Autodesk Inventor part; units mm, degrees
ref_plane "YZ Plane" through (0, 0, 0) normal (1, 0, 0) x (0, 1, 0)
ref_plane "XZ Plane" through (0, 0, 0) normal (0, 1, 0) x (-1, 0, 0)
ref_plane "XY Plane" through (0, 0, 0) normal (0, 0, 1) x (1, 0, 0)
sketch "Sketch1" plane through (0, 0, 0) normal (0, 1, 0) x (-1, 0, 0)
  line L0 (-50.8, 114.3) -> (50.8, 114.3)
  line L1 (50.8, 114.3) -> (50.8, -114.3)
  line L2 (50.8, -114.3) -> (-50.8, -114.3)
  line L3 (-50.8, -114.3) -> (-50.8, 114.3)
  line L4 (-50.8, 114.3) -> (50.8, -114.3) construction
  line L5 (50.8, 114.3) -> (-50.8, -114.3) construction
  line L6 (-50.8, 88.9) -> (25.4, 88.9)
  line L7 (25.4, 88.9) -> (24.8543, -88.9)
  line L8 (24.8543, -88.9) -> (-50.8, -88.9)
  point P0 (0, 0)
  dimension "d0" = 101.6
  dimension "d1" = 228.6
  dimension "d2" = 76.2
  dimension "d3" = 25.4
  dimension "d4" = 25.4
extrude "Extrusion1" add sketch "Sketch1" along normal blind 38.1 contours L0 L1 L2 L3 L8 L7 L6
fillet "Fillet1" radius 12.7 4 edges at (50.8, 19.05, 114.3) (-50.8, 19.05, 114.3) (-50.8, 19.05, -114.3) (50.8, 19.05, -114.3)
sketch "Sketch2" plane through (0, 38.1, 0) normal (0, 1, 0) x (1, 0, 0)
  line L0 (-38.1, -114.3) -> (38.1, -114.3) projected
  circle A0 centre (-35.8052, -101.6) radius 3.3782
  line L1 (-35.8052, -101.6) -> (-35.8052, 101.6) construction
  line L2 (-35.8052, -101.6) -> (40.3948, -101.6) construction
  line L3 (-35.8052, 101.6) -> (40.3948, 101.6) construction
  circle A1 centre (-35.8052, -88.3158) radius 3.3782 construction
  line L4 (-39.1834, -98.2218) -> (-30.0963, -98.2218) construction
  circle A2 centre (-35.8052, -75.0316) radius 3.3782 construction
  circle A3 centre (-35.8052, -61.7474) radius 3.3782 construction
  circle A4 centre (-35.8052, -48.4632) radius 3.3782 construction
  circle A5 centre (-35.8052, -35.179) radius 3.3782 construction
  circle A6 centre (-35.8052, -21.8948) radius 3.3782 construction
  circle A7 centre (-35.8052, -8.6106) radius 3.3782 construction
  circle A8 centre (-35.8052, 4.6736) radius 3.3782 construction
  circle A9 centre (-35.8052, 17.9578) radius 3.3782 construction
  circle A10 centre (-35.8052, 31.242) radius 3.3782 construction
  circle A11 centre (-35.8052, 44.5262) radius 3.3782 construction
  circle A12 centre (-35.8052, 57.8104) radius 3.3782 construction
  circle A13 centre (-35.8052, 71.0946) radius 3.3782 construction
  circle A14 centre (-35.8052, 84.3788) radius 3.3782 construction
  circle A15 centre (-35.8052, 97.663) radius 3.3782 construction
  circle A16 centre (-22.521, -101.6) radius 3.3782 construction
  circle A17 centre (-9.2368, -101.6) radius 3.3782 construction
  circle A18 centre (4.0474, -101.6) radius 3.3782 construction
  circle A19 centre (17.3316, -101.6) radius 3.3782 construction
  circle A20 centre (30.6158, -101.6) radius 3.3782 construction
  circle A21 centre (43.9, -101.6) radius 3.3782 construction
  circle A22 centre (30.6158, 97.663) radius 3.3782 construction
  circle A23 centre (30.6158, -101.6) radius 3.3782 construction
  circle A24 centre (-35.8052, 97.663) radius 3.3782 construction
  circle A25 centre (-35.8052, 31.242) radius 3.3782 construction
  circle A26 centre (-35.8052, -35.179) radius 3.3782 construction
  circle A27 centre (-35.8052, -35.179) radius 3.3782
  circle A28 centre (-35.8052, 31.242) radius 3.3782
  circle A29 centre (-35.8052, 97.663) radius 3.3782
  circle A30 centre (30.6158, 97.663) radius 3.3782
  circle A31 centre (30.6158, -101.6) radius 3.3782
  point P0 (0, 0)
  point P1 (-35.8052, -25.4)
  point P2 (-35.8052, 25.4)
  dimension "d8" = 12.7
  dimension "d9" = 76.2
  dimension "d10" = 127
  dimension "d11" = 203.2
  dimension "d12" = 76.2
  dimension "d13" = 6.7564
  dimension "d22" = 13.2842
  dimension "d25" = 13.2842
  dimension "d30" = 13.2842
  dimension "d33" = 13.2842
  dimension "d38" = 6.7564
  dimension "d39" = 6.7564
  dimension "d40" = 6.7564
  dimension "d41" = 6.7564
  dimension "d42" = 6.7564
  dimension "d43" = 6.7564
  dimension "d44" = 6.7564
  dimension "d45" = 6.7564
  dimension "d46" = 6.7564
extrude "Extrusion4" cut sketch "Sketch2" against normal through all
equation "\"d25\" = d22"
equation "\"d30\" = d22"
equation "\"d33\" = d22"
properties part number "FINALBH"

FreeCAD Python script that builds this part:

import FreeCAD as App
import Part
import Sketcher
Q = App.Units.Quantity


def edges_at(feature, points):
    """Names of the edges that pass closest to the given points."""
    edges = feature.Shape.Edges
    near = lambda p: min(range(len(edges)), key=lambda i: edges[i].distToShape(Part.Vertex(*p))[0])
    return sorted({f"Edge{near(p) + 1}" for p in points})

doc = App.newDocument("Part")
body = doc.addObject("PartDesign::Body", "Body")

sketch1 = body.newObject("Sketcher::SketchObject", "Sketch")
sketch1.AttachmentSupport = (doc.getObject("XZ_Plane"), [""])
sketch1.MapMode = "FlatFace"
sketch1.addGeometry([
    Part.LineSegment(App.Vector(-51, 114, 0), App.Vector(51, 114, 0)),
    Part.LineSegment(App.Vector(51, 114, 0), App.Vector(51, 89, 0)),
    Part.LineSegment(App.Vector(51, 89, 0), App.Vector(-25, 89, 0)),
    Part.LineSegment(App.Vector(-25, 89, 0), App.Vector(-25, -89, 0)),
    Part.LineSegment(App.Vector(-25, -89, 0), App.Vector(51, -89, 0)),
    Part.LineSegment(App.Vector(51, -89, 0), App.Vector(51, -114, 0)),
    Part.LineSegment(App.Vector(51, -114, 0), App.Vector(-51, -114, 0)),
    Part.LineSegment(App.Vector(-51, -114, 0), App.Vector(-51, 114, 0)),
], False)
sketch1.addConstraint([
    Sketcher.Constraint("Coincident", 0, 2, 1, 1),
    Sketcher.Constraint("Coincident", 1, 2, 2, 1),
    Sketcher.Constraint("Coincident", 2, 2, 3, 1),
    Sketcher.Constraint("Coincident", 3, 2, 4, 1),
    Sketcher.Constraint("Coincident", 4, 2, 5, 1),
    Sketcher.Constraint("Coincident", 5, 2, 6, 1),
    Sketcher.Constraint("Coincident", 6, 2, 7, 1),
    Sketcher.Constraint("Coincident", 7, 2, 0, 1),
    Sketcher.Constraint("Horizontal", 0),
    Sketcher.Constraint("Vertical", 1),
    Sketcher.Constraint("Horizontal", 2),
    Sketcher.Constraint("Horizontal", 4),
    Sketcher.Constraint("Vertical", 5),
    Sketcher.Constraint("Horizontal", 6),
    Sketcher.Constraint("Vertical", 7),
    Sketcher.Constraint("Symmetric", 0, 2, 6, 2, -1, 1),
    Sketcher.Constraint("Symmetric", 1, 2, 4, 2, -1),
    Sketcher.Constraint("DistanceX", 0, 1, 0, 2, Q("4 in")),
    Sketcher.Constraint("DistanceX", 2, 2, 2, 1, Q("3 in")),
    Sketcher.Constraint("DistanceY", 1, 2, 1, 1, Q("1 in")),
    Sketcher.Constraint("DistanceY", 7, 1, 7, 2, Q("9 in")),
    Sketcher.Constraint("DistanceX", 4, 1, 4, 2, Q("75.6543 mm")),
])
pad1 = body.newObject("PartDesign::Pad", "Pad")
pad1.Profile = sketch1
pad1.Length = Q("1.5 in")
pad1.Reversed = True
doc.recompute()

fillet = body.newObject("PartDesign::Fillet", "Fillet")
fillet.Base = (pad1, edges_at(pad1, [
    (50.8, 19.05, 114.3),
    (-50.8, 19.05, 114.3),
    (-50.8, 19.05, -114.3),
    (50.8, 19.05, -114.3),
]))
fillet.Radius = Q("0.5 in")

sketch2 = body.newObject("Sketcher::SketchObject", "Sketch001")
sketch2.AttachmentSupport = (doc.getObject("XZ_Plane"), [""])
sketch2.MapMode = "FlatFace"
sketch2.AttachmentOffset = App.Placement(App.Vector(0, 0, -1.5 * 25.4), App.Rotation())
sketch2.addGeometry([
    Part.Circle(App.Vector(-35.8, 101.6, 0), App.Vector(0, 0, 1), 3.4),
    Part.Circle(App.Vector(-35.8, 35.2, 0), App.Vector(0, 0, 1), 3.4),
    Part.Circle(App.Vector(-35.8, -31.2, 0), App.Vector(0, 0, 1), 3.4),
    Part.Circle(App.Vector(-35.8, -97.7, 0), App.Vector(0, 0, 1), 3.4),
    Part.Circle(App.Vector(30.6, -97.7, 0), App.Vector(0, 0, 1), 3.4),
    Part.Circle(App.Vector(30.6, 101.6, 0), App.Vector(0, 0, 1), 3.4),
], False)
sketch2.addConstraint([
    Sketcher.Constraint("Equal", 0, 1),
    Sketcher.Constraint("Equal", 1, 2),
    Sketcher.Constraint("Equal", 2, 3),
    Sketcher.Constraint("Equal", 3, 4),
    Sketcher.Constraint("Equal", 4, 5),
    Sketcher.Constraint("Horizontal", 3, 3, 4, 3),
    Sketcher.Constraint("Horizontal", 0, 3, 5, 3),
    Sketcher.Constraint("Vertical", 0, 3, 1, 3),
    Sketcher.Constraint("Vertical", 1, 3, 2, 3),
    Sketcher.Constraint("Vertical", 2, 3, 3, 3),
    Sketcher.Constraint("Vertical", 4, 3, 5, 3),
    Sketcher.Constraint("Diameter", 0, Q("0.266 in")),
    Sketcher.Constraint("DistanceY", -1, 1, 0, 3, Q("4 in")),
    Sketcher.Constraint("DistanceY", 2, 3, -1, 1, Q("1.23 in")),
    Sketcher.Constraint("DistanceY", 3, 3, 1, 3, Q("5.23 in")),
    Sketcher.Constraint("DistanceY", -1, 1, 1, 3, Q("1.385 in")),
    Sketcher.Constraint("DistanceX", 3, 3, 4, 3, Q("2.615 in")),
    Sketcher.Constraint("DistanceX", 0, 3, -1, 1, Q("35.8052 mm")),
])
pocket1 = body.newObject("PartDesign::Pocket", "Pocket")
pocket1.Profile = sketch2
pocket1.Type = "ThroughAll"
pocket1.Reversed = True

doc.recompute()
